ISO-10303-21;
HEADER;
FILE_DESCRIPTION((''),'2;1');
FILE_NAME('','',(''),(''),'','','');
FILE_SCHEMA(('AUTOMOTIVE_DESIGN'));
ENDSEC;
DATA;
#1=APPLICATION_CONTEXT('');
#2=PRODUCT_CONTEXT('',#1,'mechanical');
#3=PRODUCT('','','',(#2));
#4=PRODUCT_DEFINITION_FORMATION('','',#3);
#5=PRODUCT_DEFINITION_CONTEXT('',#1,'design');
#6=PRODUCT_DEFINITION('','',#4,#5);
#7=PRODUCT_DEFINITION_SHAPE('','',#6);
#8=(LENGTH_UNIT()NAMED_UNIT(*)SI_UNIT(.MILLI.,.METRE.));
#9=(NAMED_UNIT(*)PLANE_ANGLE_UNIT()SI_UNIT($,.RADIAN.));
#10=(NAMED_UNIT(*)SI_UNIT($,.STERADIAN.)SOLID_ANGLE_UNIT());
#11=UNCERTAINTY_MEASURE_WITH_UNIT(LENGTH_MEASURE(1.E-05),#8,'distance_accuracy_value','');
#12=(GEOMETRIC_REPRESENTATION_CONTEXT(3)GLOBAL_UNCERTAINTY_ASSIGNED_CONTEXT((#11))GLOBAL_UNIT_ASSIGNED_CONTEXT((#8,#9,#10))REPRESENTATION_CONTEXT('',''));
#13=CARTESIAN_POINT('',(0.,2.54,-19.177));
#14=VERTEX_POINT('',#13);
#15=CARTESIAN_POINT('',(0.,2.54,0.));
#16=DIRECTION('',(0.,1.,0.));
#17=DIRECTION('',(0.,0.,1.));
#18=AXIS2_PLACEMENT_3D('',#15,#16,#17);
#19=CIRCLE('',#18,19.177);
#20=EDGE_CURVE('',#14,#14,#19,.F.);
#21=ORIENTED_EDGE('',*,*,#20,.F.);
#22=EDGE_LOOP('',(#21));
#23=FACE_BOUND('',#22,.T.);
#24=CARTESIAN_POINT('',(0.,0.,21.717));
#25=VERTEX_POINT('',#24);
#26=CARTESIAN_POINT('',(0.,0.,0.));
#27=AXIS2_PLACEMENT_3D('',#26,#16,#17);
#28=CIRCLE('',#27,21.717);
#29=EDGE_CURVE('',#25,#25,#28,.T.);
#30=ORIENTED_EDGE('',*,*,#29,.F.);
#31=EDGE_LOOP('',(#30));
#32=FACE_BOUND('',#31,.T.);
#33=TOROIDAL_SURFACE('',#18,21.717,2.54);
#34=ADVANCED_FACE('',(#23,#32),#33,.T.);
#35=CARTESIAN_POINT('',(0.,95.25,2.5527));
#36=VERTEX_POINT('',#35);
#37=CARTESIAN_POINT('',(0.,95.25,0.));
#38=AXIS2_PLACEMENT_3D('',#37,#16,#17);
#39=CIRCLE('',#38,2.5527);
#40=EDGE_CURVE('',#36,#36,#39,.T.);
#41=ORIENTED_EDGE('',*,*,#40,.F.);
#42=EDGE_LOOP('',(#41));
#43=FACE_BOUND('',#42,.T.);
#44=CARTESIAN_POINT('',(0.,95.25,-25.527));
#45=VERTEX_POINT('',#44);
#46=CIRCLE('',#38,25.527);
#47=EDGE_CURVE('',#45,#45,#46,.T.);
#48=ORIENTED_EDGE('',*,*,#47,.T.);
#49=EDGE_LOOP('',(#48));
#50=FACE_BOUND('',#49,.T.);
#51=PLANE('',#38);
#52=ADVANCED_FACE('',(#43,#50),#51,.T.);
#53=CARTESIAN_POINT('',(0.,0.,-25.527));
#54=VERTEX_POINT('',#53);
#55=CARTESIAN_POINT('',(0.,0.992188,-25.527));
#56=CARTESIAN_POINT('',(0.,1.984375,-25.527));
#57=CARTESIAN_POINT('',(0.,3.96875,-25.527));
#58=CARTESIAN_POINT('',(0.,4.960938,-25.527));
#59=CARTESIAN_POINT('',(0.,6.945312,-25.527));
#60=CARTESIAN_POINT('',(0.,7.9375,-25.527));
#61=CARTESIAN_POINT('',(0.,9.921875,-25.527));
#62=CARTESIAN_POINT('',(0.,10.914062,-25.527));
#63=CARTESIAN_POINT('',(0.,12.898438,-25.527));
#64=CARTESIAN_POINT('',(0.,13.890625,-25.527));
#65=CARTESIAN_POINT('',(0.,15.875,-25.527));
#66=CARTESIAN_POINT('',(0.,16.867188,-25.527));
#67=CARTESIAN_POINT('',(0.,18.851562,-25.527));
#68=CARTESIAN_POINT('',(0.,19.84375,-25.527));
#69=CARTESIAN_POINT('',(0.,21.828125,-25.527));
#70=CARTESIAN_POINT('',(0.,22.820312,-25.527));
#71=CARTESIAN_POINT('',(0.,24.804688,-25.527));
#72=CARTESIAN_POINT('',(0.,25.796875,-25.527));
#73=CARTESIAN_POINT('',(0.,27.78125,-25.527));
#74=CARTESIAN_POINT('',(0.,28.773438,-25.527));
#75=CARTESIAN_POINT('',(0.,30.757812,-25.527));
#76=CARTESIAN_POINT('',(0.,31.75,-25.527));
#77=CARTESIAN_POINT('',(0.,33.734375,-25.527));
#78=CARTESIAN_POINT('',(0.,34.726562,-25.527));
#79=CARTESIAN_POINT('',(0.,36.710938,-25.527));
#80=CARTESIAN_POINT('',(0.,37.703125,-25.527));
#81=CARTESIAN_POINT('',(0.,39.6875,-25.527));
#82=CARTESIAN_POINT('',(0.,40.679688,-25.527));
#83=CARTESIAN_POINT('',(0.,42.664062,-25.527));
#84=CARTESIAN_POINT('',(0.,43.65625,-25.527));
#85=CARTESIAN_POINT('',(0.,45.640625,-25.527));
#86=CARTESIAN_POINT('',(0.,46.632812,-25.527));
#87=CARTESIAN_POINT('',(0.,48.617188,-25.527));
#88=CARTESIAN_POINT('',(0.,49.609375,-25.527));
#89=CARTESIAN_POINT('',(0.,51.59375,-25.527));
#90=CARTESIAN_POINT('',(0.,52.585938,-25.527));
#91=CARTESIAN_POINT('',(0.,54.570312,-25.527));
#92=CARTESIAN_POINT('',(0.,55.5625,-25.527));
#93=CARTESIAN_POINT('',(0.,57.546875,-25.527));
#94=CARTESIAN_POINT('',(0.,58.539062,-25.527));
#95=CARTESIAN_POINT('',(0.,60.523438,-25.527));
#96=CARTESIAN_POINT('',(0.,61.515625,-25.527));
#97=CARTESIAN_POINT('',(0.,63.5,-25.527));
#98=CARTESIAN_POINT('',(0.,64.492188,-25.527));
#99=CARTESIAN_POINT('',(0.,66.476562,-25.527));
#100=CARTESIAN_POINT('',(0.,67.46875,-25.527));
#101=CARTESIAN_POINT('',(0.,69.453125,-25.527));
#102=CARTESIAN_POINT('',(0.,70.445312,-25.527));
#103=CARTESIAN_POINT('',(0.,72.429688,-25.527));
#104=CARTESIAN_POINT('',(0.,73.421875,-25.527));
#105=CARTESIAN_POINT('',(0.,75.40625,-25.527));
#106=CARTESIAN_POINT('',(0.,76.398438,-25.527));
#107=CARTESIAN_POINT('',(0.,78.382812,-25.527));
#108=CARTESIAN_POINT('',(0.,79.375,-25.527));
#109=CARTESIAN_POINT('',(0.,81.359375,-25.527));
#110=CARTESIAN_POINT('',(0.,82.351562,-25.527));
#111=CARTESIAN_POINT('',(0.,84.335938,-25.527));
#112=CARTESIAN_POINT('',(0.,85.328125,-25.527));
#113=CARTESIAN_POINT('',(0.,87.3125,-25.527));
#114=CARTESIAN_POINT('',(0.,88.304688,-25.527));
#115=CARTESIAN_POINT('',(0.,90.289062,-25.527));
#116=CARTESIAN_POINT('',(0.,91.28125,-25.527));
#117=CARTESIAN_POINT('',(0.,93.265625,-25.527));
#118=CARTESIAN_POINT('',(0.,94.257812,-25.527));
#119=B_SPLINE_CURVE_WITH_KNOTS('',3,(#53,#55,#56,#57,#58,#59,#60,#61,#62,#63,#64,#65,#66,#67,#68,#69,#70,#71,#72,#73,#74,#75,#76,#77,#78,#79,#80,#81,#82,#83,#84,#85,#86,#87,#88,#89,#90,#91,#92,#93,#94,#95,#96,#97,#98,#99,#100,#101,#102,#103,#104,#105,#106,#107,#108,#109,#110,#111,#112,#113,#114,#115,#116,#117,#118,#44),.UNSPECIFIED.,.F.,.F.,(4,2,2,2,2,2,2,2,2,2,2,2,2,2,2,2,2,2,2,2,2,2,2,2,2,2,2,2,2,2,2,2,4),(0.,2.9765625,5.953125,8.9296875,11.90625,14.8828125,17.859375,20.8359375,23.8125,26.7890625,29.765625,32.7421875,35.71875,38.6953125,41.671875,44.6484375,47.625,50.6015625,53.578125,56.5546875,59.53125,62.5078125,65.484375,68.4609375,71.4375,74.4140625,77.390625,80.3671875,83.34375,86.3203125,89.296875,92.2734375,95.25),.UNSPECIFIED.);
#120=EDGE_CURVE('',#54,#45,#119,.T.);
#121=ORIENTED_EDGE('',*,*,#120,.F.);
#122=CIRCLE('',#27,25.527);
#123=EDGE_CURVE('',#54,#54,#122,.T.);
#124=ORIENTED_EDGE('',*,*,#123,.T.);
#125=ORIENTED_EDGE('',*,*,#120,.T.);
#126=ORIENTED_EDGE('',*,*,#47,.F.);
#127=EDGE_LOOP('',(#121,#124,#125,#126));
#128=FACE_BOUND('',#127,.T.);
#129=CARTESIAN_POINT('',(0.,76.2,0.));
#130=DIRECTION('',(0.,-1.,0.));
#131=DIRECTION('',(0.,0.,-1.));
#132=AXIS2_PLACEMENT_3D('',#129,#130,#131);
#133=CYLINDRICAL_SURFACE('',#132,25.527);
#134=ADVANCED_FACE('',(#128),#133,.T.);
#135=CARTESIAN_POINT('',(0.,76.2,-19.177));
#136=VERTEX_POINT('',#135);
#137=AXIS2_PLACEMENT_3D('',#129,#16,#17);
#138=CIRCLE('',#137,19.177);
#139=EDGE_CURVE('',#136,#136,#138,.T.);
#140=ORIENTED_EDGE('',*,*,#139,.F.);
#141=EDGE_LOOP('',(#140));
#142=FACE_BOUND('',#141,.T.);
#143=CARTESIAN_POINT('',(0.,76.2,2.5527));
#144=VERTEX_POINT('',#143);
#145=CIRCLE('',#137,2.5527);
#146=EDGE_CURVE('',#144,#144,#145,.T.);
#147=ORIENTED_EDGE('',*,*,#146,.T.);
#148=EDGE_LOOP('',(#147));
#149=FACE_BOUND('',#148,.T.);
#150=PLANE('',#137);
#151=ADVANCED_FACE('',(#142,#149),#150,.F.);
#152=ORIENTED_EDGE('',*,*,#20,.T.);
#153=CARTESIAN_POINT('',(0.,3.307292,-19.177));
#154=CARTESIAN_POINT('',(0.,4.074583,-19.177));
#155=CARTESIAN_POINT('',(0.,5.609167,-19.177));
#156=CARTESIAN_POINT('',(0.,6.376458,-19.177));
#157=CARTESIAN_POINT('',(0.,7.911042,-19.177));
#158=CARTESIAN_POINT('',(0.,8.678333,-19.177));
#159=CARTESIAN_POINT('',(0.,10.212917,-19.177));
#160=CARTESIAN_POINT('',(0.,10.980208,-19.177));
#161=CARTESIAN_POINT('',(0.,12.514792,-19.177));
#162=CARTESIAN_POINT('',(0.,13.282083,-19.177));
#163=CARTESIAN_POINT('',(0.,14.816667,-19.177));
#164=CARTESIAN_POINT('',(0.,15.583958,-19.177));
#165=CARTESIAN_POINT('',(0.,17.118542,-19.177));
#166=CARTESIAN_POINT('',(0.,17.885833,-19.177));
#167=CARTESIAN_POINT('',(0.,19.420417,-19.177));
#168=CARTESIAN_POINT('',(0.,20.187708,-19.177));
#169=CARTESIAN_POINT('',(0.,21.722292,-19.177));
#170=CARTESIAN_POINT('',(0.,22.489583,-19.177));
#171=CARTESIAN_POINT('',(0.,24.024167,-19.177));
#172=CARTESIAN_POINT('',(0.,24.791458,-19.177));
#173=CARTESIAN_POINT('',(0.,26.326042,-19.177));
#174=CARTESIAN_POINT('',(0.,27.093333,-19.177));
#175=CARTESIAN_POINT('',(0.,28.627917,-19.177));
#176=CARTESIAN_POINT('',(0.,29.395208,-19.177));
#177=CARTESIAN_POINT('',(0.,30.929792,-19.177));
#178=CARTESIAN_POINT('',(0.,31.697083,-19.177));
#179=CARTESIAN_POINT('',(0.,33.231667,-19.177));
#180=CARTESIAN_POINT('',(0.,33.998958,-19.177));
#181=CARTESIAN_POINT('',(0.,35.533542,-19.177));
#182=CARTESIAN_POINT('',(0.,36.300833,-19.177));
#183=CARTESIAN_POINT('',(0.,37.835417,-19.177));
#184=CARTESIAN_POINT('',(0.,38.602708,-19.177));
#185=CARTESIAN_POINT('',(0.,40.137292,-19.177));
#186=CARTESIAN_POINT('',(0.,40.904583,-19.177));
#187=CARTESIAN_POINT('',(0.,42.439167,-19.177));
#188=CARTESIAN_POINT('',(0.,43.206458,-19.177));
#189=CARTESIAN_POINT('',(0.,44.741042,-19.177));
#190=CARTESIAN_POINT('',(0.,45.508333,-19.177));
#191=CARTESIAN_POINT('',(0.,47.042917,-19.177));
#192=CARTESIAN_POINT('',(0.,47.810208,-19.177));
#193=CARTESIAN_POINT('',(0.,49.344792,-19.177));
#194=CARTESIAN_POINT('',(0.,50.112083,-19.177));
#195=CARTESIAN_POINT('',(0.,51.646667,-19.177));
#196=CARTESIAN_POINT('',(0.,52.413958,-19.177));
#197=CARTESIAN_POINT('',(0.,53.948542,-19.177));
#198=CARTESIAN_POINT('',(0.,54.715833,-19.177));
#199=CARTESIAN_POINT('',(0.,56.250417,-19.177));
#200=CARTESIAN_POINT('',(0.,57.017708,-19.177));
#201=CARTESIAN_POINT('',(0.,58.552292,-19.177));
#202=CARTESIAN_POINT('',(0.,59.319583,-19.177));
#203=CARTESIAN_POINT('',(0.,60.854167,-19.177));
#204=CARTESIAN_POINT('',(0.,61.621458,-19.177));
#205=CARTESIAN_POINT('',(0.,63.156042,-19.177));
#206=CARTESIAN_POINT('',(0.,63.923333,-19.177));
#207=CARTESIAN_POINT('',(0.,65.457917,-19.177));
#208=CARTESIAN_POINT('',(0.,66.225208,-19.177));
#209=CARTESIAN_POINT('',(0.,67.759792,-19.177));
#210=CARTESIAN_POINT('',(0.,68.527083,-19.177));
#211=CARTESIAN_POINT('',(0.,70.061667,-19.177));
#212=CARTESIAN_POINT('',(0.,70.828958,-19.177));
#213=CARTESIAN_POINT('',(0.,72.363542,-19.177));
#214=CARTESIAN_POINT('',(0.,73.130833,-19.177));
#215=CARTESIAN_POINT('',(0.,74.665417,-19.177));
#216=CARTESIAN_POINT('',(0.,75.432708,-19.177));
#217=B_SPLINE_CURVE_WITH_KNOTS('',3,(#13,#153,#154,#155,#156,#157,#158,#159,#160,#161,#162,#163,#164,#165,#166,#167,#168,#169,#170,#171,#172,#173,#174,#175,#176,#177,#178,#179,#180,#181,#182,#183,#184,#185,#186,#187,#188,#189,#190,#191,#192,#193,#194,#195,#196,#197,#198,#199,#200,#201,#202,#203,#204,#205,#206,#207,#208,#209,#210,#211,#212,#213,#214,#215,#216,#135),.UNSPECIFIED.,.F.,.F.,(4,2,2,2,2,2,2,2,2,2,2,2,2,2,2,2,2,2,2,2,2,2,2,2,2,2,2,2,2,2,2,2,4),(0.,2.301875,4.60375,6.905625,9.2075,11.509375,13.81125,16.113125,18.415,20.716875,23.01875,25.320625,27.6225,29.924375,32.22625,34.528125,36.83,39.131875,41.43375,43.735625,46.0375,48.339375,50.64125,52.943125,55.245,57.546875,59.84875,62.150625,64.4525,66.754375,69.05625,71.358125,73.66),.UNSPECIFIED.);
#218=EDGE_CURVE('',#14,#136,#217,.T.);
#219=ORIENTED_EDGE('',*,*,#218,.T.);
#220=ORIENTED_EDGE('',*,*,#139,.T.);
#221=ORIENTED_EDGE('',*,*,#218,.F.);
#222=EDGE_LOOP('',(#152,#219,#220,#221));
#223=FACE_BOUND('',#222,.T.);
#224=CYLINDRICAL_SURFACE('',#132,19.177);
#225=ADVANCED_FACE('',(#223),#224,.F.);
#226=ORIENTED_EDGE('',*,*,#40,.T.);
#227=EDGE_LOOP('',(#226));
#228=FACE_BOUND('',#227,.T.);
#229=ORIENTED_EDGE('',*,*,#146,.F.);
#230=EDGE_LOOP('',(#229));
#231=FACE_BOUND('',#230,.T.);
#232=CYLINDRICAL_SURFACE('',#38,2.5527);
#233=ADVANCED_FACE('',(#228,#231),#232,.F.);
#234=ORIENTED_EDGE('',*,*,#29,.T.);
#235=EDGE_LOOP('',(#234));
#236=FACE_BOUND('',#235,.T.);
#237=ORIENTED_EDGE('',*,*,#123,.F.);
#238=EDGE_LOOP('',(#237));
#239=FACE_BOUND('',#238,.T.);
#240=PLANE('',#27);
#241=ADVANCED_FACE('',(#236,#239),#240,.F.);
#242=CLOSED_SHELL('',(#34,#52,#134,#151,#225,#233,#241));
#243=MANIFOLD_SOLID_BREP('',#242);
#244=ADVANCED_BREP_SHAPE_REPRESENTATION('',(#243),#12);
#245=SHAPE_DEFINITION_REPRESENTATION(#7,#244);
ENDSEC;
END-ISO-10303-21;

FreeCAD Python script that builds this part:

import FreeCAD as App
import Part
import Sketcher
from FreeCAD import Vector
Q = App.Units.Quantity


def edges_at(feature, points):
    """Names of the edges that pass closest to the given points."""
    edges = feature.Shape.Edges
    near = lambda p: min(range(len(edges)), key=lambda i: edges[i].distToShape(Part.Vertex(*p))[0])
    return sorted({f"Edge{near(p) + 1}" for p in points})

doc = App.newDocument("Part")
body = doc.addObject("PartDesign::Body", "Body")

sketch1 = body.newObject("Sketcher::SketchObject", "Sketch")
sketch1.AttachmentSupport = (doc.getObject("XZ_Plane"), [""])
sketch1.MapMode = "FlatFace"
sketch1.addGeometry(Part.Circle(Vector(0, 0, 0), Vector(0, 0, 1), 25.527), False)
sketch1.addGeometry(Part.Circle(Vector(0, 0, 0), Vector(0, 0, 1), 19.177), False)
sketch1.addConstraint(Sketcher.Constraint("Coincident", 0, 3, -1, 1))
sketch1.addConstraint(Sketcher.Constraint("Coincident", 1, 3, -1, 1))
sketch1.addConstraint(Sketcher.Constraint("Diameter", 0, Q("2.01 in")))
sketch1.addConstraint(Sketcher.Constraint("Diameter", 1, Q("1.51 in")))
pad1 = body.newObject("PartDesign::Pad", "Pad")
pad1.Profile = sketch1
pad1.Length = Q("3 in")
pad1.Reversed = True

sketch2 = body.newObject("Sketcher::SketchObject", "Sketch001")
sketch2.AttachmentSupport = (doc.getObject("XZ_Plane"), [""])
sketch2.MapMode = "FlatFace"
sketch2.AttachmentOffset = App.Placement(Vector(0, 0, -3 * 25.4), App.Rotation())
sketch2.addGeometry(Part.Circle(Vector(0, 0, 0), Vector(0, 0, 1), 25.527), False)
sketch2.addConstraint(Sketcher.Constraint("Coincident", 0, 3, -1, 1))
sketch2.addConstraint(Sketcher.Constraint("Diameter", 0, Q("2.01 in")))
pad2 = body.newObject("PartDesign::Pad", "Pad001")
pad2.Profile = sketch2
pad2.Length = Q("0.75 in")
pad2.Reversed = True

sketch3 = body.newObject("Sketcher::SketchObject", "Sketch002")
sketch3.AttachmentSupport = (doc.getObject("XZ_Plane"), [""])
sketch3.MapMode = "FlatFace"
sketch3.AttachmentOffset = App.Placement(Vector(0, 0, -3.75 * 25.4), App.Rotation())
sketch3.addGeometry(Part.Circle(Vector(0, 0, 0), Vector(0, 0, 1), 2.5527), False)
sketch3.addConstraint(Sketcher.Constraint("Coincident", 0, 3, -1, 1))
sketch3.addConstraint(Sketcher.Constraint("Diameter", 0, Q("0.201 in")))
doc.recompute()
hole = body.newObject("PartDesign::Hole", "Hole")
hole.Profile = sketch3
hole.ThreadType = "None"
hole.Diameter = Q("0.201 in")
hole.DepthType = "ThroughAll"
hole.Reversed = True
doc.recompute()

fillet = body.newObject("PartDesign::Fillet", "Fillet")
fillet.Base = (hole, edges_at(hole, [(0, 0, 19.177)]))
fillet.Radius = Q("0.1 in")

doc.recompute()
